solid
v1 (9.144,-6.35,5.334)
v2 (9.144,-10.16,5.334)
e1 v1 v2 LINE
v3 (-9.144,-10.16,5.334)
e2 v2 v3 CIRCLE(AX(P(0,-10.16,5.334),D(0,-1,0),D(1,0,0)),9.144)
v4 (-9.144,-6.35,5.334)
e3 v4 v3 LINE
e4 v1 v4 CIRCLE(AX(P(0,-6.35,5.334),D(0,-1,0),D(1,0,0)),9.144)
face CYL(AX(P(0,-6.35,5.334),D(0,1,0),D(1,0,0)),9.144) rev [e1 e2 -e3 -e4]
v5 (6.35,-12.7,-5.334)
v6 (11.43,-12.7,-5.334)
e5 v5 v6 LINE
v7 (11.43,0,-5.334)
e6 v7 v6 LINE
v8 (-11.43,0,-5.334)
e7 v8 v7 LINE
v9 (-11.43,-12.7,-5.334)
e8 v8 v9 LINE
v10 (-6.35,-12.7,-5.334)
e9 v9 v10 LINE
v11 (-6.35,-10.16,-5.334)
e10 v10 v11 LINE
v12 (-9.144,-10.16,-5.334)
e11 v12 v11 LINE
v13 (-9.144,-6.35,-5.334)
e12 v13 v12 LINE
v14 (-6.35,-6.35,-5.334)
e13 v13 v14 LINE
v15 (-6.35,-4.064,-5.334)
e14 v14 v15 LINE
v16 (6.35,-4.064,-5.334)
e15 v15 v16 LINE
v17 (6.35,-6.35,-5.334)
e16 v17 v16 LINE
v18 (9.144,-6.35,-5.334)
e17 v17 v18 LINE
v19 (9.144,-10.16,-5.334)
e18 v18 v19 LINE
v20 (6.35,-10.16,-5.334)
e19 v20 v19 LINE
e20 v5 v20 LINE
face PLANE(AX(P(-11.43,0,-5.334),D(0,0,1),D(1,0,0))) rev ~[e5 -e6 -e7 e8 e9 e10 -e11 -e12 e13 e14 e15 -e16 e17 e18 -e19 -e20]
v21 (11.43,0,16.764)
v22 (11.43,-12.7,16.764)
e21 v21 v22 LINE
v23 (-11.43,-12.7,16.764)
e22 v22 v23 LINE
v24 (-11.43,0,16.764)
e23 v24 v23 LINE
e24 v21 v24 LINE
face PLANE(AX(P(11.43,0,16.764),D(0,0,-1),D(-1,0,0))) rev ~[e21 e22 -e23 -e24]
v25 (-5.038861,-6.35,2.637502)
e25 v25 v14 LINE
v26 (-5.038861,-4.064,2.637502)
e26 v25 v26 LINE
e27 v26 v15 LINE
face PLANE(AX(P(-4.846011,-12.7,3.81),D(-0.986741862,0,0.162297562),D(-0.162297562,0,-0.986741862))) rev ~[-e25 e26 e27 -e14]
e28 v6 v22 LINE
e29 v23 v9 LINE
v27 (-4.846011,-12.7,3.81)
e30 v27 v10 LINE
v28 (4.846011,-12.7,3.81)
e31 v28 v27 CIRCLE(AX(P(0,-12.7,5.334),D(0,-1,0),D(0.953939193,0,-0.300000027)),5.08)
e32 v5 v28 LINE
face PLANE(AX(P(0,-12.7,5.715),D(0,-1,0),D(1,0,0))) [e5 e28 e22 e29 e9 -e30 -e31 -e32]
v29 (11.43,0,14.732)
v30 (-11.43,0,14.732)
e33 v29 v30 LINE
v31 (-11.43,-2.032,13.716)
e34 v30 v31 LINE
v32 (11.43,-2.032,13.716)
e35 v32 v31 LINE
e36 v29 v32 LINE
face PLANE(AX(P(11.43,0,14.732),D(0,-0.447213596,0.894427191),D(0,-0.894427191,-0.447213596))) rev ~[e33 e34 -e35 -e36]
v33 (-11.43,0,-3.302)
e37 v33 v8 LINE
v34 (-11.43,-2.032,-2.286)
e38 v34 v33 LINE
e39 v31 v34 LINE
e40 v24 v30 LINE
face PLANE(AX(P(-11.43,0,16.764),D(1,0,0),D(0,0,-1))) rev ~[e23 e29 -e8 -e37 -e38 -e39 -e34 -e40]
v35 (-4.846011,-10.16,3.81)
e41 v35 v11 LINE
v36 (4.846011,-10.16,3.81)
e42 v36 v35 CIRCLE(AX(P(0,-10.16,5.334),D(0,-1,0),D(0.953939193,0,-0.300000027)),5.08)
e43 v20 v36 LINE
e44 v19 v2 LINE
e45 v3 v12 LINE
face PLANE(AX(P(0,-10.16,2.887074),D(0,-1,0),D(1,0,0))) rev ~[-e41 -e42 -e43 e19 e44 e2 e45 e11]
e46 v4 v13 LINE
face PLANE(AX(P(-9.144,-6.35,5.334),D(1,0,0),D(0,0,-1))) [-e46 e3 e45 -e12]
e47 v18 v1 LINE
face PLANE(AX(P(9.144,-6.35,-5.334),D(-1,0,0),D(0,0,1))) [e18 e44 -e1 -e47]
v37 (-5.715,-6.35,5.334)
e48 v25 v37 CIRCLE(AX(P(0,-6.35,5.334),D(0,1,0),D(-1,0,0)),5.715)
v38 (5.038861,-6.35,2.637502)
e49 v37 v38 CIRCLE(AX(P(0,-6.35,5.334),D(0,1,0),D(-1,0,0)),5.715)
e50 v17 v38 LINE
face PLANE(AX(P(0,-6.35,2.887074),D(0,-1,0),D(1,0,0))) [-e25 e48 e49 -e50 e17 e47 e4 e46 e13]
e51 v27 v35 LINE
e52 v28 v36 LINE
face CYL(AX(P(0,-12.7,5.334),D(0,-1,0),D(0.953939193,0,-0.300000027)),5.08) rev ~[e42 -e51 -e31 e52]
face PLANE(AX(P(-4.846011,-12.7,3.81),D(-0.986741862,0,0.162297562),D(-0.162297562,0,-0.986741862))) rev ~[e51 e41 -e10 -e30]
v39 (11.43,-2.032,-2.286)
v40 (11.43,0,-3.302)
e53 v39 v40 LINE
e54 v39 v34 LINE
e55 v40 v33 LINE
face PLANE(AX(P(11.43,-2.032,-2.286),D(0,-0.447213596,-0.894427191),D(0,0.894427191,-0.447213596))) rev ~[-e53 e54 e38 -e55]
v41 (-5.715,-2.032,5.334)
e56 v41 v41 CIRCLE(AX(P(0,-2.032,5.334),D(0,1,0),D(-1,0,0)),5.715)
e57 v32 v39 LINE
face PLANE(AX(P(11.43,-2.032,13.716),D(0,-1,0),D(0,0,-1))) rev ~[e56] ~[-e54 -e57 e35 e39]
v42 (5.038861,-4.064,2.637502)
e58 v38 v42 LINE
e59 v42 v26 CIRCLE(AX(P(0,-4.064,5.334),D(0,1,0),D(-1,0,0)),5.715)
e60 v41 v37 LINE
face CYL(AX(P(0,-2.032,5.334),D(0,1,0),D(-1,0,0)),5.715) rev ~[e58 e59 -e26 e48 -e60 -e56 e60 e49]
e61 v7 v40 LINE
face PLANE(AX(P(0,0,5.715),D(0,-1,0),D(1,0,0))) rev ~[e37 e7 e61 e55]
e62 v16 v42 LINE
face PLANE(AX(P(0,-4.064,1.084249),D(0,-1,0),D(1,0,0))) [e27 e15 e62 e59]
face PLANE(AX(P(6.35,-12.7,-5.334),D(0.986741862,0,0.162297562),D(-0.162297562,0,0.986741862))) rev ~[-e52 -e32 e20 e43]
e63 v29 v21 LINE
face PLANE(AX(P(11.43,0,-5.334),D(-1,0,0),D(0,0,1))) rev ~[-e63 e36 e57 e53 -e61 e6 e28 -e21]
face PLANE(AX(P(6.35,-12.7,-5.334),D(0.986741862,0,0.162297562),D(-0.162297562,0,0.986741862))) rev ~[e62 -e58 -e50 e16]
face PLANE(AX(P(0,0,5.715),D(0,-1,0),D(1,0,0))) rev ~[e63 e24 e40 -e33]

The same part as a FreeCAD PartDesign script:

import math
import FreeCAD as App
import Part
import Sketcher
Q = App.Units.Quantity

doc = App.newDocument("Part")
body = doc.addObject("PartDesign::Body", "Body")

sketch1 = body.newObject("Sketcher::SketchObject", "Sketch")
sketch1.AttachmentSupport = (doc.getObject("XZ_Plane"), [""])
sketch1.MapMode = "FlatFace"
sketch1.addGeometry([
    Part.LineSegment(App.Vector(-11, -5, 0), App.Vector(11, -5, 0)),
    Part.LineSegment(App.Vector(11, -5, 0), App.Vector(11, 17, 0)),
    Part.LineSegment(App.Vector(11, 17, 0), App.Vector(-11, 17, 0)),
    Part.LineSegment(App.Vector(-11, 17, 0), App.Vector(-11, -5, 0)),
], False)
sketch1.addConstraint([
    Sketcher.Constraint("Coincident", 0, 2, 1, 1),
    Sketcher.Constraint("Coincident", 1, 2, 2, 1),
    Sketcher.Constraint("Coincident", 2, 2, 3, 1),
    Sketcher.Constraint("Coincident", 3, 2, 0, 1),
    Sketcher.Constraint("Horizontal", 0),
    Sketcher.Constraint("Vertical", 1),
    Sketcher.Constraint("Horizontal", 2),
    Sketcher.Constraint("Vertical", 3),
    Sketcher.Constraint("DistanceX", 0, 1, 0, 2, Q("0.9 in")),
    Sketcher.Constraint("DistanceY", 1, 1, 1, 2, Q("0.87 in")),
    Sketcher.Constraint("DistanceX", -1, 1, 0, 2, Q("0.45 in")),
    Sketcher.Constraint("DistanceY", 0, 2, -1, 1, Q("0.21 in")),
])
pad1 = body.newObject("PartDesign::Pad", "Pad")
pad1.Profile = sketch1
pad1.Length = Q("0.5 in")

sketch2 = body.newObject("Sketcher::SketchObject", "Sketch001")
sketch2.AttachmentSupport = (doc.getObject("XZ_Plane"), [""])
sketch2.MapMode = "FlatFace"
sketch2.AttachmentOffset = App.Placement(App.Vector(0, 0, 0.25 * 25.4), App.Rotation())
sketch2.addGeometry([
    Part.LineSegment(App.Vector(-9, -5, 0), App.Vector(9, -5, 0)),
    Part.LineSegment(App.Vector(9, -5, 0), App.Vector(9, 5, 0)),
    Part.ArcOfCircle(Part.Circle(App.Vector(0, 5, 0), App.Vector(0, 0, 1), 9), math.radians(0), math.radians(180)),
    Part.LineSegment(App.Vector(-9, 5, 0), App.Vector(-9, -5, 0)),
], False)
sketch2.addConstraint([
    Sketcher.Constraint("Coincident", 0, 2, 1, 1),
    Sketcher.Constraint("Tangent", 1, 2, 2, 1),
    Sketcher.Constraint("Tangent", 2, 2, 3, 1),
    Sketcher.Constraint("Coincident", 3, 2, 0, 1),
    Sketcher.Constraint("Horizontal", 0),
    Sketcher.Constraint("Vertical", 1),
    Sketcher.Constraint("Vertical", 3),
    Sketcher.Constraint("Symmetric", 0, 2, 2, 2, -1, 1),
    Sketcher.Constraint("Radius", 2, Q("0.36 in")),
    Sketcher.Constraint("DistanceY", 1, 1, 1, 2, Q("0.42 in")),
])
pocket1 = body.newObject("PartDesign::Pocket", "Pocket")
pocket1.Profile = sketch2
pocket1.Length = Q("0.15 in")
pocket1.Reversed = True

sketch3 = body.newObject("Sketcher::SketchObject", "Sketch002")
sketch3.AttachmentSupport = (doc.getObject("XZ_Plane"), [""])
sketch3.MapMode = "FlatFace"
sketch3.AttachmentOffset = App.Placement(App.Vector(0, 0, 0.5 * 25.4), App.Rotation())
sketch3.addGeometry([
    Part.LineSegment(App.Vector(6, -5, 0), App.Vector(5, 4, 0)),
    Part.ArcOfCircle(Part.Circle(App.Vector(0, 5, 0), App.Vector(0, 0, 1), 5), math.radians(-17), math.radians(197)),
    Part.LineSegment(App.Vector(-5, 4, 0), App.Vector(-6, -5, 0)),
    Part.LineSegment(App.Vector(-6, -5, 0), App.Vector(6, -5, 0)),
], False)
sketch3.addConstraint([
    Sketcher.Constraint("Coincident", 0, 2, 1, 1),
    Sketcher.Constraint("Coincident", 1, 2, 2, 1),
    Sketcher.Constraint("Coincident", 2, 2, 3, 1),
    Sketcher.Constraint("Coincident", 3, 2, 0, 1),
    Sketcher.Constraint("Horizontal", 3),
    Sketcher.Constraint("Symmetric", 0, 2, 1, 2, -2),
    Sketcher.Constraint("Equal", 0, 2),
    Sketcher.Constraint("Radius", 1, Q("0.2 in")),
    Sketcher.Constraint("DistanceX", 3, 1, 3, 2, Q("0.5 in")),
    Sketcher.Constraint("DistanceY", -1, 1, 1, 3, Q("0.21 in")),
    Sketcher.Constraint("DistanceY", -1, 1, 0, 2, Q("0.15 in")),
    Sketcher.Constraint("DistanceY", 2, 2, -1, 1, Q("0.21 in")),
])
pocket2 = body.newObject("PartDesign::Pocket", "Pocket001")
pocket2.Profile = sketch3
pocket2.Length = Q("0.34 in")

sketch4 = body.newObject("Sketcher::SketchObject", "Sketch003")
sketch4.AttachmentSupport = (doc.getObject("YZ_Plane"), [""])
sketch4.MapMode = "FlatFace"
sketch4.AttachmentOffset = App.Placement(App.Vector(0, 0, 0.45 * 25.4), App.Rotation())
sketch4.addGeometry([
    Part.LineSegment(App.Vector(-2, -2.3, 0), App.Vector(0, -3.3, 0)),
    Part.LineSegment(App.Vector(0, -3.3, 0), App.Vector(0, 14.7, 0)),
    Part.LineSegment(App.Vector(0, 14.7, 0), App.Vector(-2, 13.7, 0)),
    Part.LineSegment(App.Vector(-2, 13.7, 0), App.Vector(-2, -2.3, 0)),
], False)
sketch4.addConstraint([
    Sketcher.Constraint("Coincident", 0, 2, 1, 1),
    Sketcher.Constraint("Coincident", 1, 2, 2, 1),
    Sketcher.Constraint("Coincident", 2, 2, 3, 1),
    Sketcher.Constraint("Coincident", 3, 2, 0, 1),
    Sketcher.Constraint("Vertical", 1),
    Sketcher.Constraint("Vertical", 3),
    Sketcher.Constraint("PointOnObject", 0, 2, -2),
    Sketcher.Constraint("Equal", 0, 2),
    Sketcher.Constraint("DistanceY", 1, 1, 1, 2, Q("0.71 in")),
    Sketcher.Constraint("DistanceY", 3, 2, 3, 1, Q("0.63 in")),
    Sketcher.Constraint("DistanceY", 0, 2, -1, 1, Q("0.13 in")),
    Sketcher.Constraint("DistanceX", 2, 2, -1, 1, Q("0.08 in")),
])
pocket3 = body.newObject("PartDesign::Pocket", "Pocket002")
pocket3.Profile = sketch4
pocket3.Length = Q("1 in")

sketch5 = body.newObject("Sketcher::SketchObject", "Sketch004")
sketch5.AttachmentSupport = (doc.getObject("XZ_Plane"), [""])
sketch5.MapMode = "FlatFace"
sketch5.AttachmentOffset = App.Placement(App.Vector(0, 0, 0.08 * 25.4), App.Rotation())
sketch5.addGeometry(Part.Circle(App.Vector(0, 5, 0), App.Vector(0, 0, 1), 6), False)
sketch5.addConstraint([
    Sketcher.Constraint("PointOnObject", 0, 3, -2),
    Sketcher.Constraint("Diameter", 0, Q("0.45 in")),
    Sketcher.Constraint("DistanceY", -1, 1, 0, 3, Q("0.21 in")),
])
pocket4 = body.newObject("PartDesign::Pocket", "Pocket003")
pocket4.Profile = sketch5
pocket4.Length = Q("0.17 in")
pocket4.Reversed = True

doc.recompute()
